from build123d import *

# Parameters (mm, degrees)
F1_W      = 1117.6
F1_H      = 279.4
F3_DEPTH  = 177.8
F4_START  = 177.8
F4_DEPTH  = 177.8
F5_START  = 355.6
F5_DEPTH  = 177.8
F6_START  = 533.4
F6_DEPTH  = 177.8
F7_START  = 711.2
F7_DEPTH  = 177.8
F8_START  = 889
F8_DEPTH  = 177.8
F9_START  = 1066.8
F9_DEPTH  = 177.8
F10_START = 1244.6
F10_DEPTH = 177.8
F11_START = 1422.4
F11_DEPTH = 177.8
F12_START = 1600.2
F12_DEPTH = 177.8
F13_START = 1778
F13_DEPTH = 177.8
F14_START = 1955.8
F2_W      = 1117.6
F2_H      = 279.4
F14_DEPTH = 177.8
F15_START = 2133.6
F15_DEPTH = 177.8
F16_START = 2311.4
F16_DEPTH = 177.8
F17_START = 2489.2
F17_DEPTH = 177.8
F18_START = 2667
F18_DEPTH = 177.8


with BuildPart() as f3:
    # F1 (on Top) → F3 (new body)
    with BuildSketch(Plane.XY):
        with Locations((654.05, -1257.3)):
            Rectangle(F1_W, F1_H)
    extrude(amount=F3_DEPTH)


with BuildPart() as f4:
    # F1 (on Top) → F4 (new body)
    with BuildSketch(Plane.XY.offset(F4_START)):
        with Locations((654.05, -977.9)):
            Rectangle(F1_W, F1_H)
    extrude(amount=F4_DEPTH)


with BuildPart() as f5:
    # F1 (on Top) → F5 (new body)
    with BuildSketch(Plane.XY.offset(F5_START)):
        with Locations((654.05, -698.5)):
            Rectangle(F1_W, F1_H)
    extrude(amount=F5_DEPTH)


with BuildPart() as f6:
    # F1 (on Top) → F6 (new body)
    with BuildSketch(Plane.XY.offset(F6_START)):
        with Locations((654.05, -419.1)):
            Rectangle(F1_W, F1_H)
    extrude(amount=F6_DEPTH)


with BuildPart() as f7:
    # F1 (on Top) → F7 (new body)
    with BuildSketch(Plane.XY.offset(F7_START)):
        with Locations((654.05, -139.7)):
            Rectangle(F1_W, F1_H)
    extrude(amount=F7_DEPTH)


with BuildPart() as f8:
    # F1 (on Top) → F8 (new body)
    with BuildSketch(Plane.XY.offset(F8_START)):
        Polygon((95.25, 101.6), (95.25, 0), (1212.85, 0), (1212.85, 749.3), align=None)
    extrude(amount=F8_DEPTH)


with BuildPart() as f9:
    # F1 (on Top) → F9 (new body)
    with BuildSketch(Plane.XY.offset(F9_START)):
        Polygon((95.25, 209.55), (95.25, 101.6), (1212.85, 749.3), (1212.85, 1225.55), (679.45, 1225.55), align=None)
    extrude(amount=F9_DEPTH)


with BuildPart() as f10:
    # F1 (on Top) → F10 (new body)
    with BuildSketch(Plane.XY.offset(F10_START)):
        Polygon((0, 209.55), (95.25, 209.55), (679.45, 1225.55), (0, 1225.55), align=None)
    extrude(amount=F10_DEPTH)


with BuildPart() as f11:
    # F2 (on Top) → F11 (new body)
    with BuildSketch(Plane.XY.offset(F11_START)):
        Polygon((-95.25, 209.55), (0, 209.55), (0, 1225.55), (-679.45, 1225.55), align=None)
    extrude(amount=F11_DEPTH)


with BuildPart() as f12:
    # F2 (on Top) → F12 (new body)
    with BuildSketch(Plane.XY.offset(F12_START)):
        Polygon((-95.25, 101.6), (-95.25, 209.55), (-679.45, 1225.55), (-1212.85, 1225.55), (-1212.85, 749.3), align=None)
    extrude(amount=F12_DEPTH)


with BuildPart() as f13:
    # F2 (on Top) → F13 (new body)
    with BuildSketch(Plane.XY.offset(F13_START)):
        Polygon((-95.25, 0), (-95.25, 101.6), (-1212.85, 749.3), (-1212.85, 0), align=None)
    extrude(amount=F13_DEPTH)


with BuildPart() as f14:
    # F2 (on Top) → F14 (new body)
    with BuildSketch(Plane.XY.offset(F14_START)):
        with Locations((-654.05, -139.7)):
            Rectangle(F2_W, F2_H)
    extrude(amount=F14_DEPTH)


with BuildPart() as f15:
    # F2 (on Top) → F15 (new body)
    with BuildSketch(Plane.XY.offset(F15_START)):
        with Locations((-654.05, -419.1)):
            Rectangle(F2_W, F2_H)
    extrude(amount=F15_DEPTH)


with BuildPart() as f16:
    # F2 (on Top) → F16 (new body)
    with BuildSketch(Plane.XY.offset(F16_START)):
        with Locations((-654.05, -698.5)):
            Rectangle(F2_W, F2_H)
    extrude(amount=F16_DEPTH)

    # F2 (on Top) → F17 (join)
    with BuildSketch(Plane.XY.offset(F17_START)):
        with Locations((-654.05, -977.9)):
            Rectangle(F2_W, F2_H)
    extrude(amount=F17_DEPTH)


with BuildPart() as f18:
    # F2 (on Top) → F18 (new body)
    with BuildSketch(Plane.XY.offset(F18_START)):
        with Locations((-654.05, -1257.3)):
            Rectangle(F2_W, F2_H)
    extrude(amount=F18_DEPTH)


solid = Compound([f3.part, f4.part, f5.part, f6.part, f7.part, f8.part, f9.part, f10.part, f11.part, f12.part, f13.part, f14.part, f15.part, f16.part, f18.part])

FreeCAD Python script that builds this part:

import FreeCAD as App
import Part
import Sketcher
from FreeCAD import Vector
Q = App.Units.Quantity


def add_polygon(sketch, points):
    """Adds a closed chain of lines whose ends are joined by coincident constraints."""
    first, n = sketch.GeometryCount, len(points)
    for a, b in zip(points, points[1:] + points[:1]):
        sketch.addGeometry(Part.LineSegment(App.Vector(*a, 0), App.Vector(*b, 0)), False)
    for i in range(n):
        sketch.addConstraint(Sketcher.Constraint("Coincident", first + i, 2, first + (i + 1) % n, 1))

doc = App.newDocument("Part")
body = doc.addObject("PartDesign::Body", "Body")

# Sketch on XY plane
sketch1 = body.newObject("Sketcher::SketchObject", "Sketch")
sketch1.AttachmentSupport = (doc.getObject("XY_Plane"), [""])
sketch1.MapMode = "FlatFace"
add_polygon(sketch1, [(95.25, -1117.6), (95.25, -1397), (1212.85, -1397), (1212.85, -1117.6)])  # lines 0-3
sketch1.addConstraint([
    Sketcher.Constraint("Vertical", 0),
    Sketcher.Constraint("Horizontal", 1),
    Sketcher.Constraint("Vertical", 2),
    Sketcher.Constraint("Horizontal", 3),
    Sketcher.Constraint("DistanceX", 1, 1, 1, 2, Q("44 in")),
    Sketcher.Constraint("DistanceY", 0, 2, 0, 1, Q("11 in")),
    Sketcher.Constraint("DistanceY", 0, 2, -1, 1, Q("55 in")),
    Sketcher.Constraint("DistanceX", -1, 1, 0, 2, Q("3.75 in")),
])
pad1 = body.newObject("PartDesign::Pad", "Pad")
pad1.Profile = sketch1
pad1.Length = Q("7 in")
body2 = doc.addObject("PartDesign::Body", "Body001")

# Sketch on XY plane
sketch2 = body2.newObject("Sketcher::SketchObject", "Sketch001")
sketch2.AttachmentSupport = (doc.getObject("XY_Plane001"), [""])
sketch2.MapMode = "FlatFace"
sketch2.AttachmentOffset = App.Placement(Vector(0, 0, 7 * 25.4), App.Rotation())
add_polygon(sketch2, [(95.25, -838.2), (95.25, -1117.6), (1212.85, -1117.6), (1212.85, -838.2)])  # lines 0-3
sketch2.addConstraint([
    Sketcher.Constraint("Vertical", 0),
    Sketcher.Constraint("Horizontal", 1),
    Sketcher.Constraint("Vertical", 2),
    Sketcher.Constraint("Horizontal", 3),
    Sketcher.Constraint("DistanceX", 1, 1, 1, 2, Q("44 in")),
    Sketcher.Constraint("DistanceY", 0, 2, 0, 1, Q("11 in")),
    Sketcher.Constraint("DistanceY", 0, 2, -1, 1, Q("44 in")),
    Sketcher.Constraint("DistanceX", -1, 1, 0, 2, Q("3.75 in")),
])
pad2 = body2.newObject("PartDesign::Pad", "Pad001")
pad2.Profile = sketch2
pad2.Length = Q("7 in")
body3 = doc.addObject("PartDesign::Body", "Body002")

# Sketch on XY plane
sketch3 = body3.newObject("Sketcher::SketchObject", "Sketch002")
sketch3.AttachmentSupport = (doc.getObject("XY_Plane002"), [""])
sketch3.MapMode = "FlatFace"
sketch3.AttachmentOffset = App.Placement(Vector(0, 0, 14 * 25.4), App.Rotation())
add_polygon(sketch3, [(95.25, -558.8), (95.25, -838.2), (1212.85, -838.2), (1212.85, -558.8)])  # lines 0-3
sketch3.addConstraint([
    Sketcher.Constraint("Vertical", 0),
    Sketcher.Constraint("Horizontal", 1),
    Sketcher.Constraint("Vertical", 2),
    Sketcher.Constraint("Horizontal", 3),
    Sketcher.Constraint("DistanceX", 1, 1, 1, 2, Q("44 in")),
    Sketcher.Constraint("DistanceY", 0, 2, 0, 1, Q("11 in")),
    Sketcher.Constraint("DistanceY", 0, 2, -1, 1, Q("33 in")),
    Sketcher.Constraint("DistanceX", -1, 1, 0, 2, Q("3.75 in")),
])
pad3 = body3.newObject("PartDesign::Pad", "Pad002")
pad3.Profile = sketch3
pad3.Length = Q("7 in")
body4 = doc.addObject("PartDesign::Body", "Body003")

# Sketch on XY plane
sketch4 = body4.newObject("Sketcher::SketchObject", "Sketch003")
sketch4.AttachmentSupport = (doc.getObject("XY_Plane003"), [""])
sketch4.MapMode = "FlatFace"
sketch4.AttachmentOffset = App.Placement(Vector(0, 0, 21 * 25.4), App.Rotation())
add_polygon(sketch4, [(95.25, -279.4), (95.25, -558.8), (1212.85, -558.8), (1212.85, -279.4)])  # lines 0-3
sketch4.addConstraint([
    Sketcher.Constraint("Vertical", 0),
    Sketcher.Constraint("Horizontal", 1),
    Sketcher.Constraint("Vertical", 2),
    Sketcher.Constraint("Horizontal", 3),
    Sketcher.Constraint("DistanceX", 1, 1, 1, 2, Q("44 in")),
    Sketcher.Constraint("DistanceY", 0, 2, 0, 1, Q("11 in")),
    Sketcher.Constraint("DistanceY", 0, 2, -1, 1, Q("22 in")),
    Sketcher.Constraint("DistanceX", -1, 1, 0, 2, Q("3.75 in")),
])
pad4 = body4.newObject("PartDesign::Pad", "Pad003")
pad4.Profile = sketch4
pad4.Length = Q("7 in")
body5 = doc.addObject("PartDesign::Body", "Body004")

# Sketch on XY plane
sketch5 = body5.newObject("Sketcher::SketchObject", "Sketch004")
sketch5.AttachmentSupport = (doc.getObject("XY_Plane004"), [""])
sketch5.MapMode = "FlatFace"
sketch5.AttachmentOffset = App.Placement(Vector(0, 0, 28 * 25.4), App.Rotation())
add_polygon(sketch5, [(95.25, 0), (95.25, -279.4), (1212.85, -279.4), (1212.85, 0)])  # lines 0-3
sketch5.addConstraint([
    Sketcher.Constraint("Vertical", 0),
    Sketcher.Constraint("Horizontal", 1),
    Sketcher.Constraint("Vertical", 2),
    Sketcher.Constraint("Horizontal", 3),
    Sketcher.Constraint("PointOnObject", 2, 2, -1),
    Sketcher.Constraint("DistanceX", 1, 1, 1, 2, Q("44 in")),
    Sketcher.Constraint("DistanceY", 0, 2, 0, 1, Q("11 in")),
    Sketcher.Constraint("DistanceX", -1, 1, 0, 2, Q("3.75 in")),
])
pad5 = body5.newObject("PartDesign::Pad", "Pad004")
pad5.Profile = sketch5
pad5.Length = Q("7 in")
body6 = doc.addObject("PartDesign::Body", "Body005")

# Sketch on XY plane
sketch6 = body6.newObject("Sketcher::SketchObject", "Sketch005")
sketch6.AttachmentSupport = (doc.getObject("XY_Plane005"), [""])
sketch6.MapMode = "FlatFace"
sketch6.AttachmentOffset = App.Placement(Vector(0, 0, 35 * 25.4), App.Rotation())
add_polygon(sketch6, [(95.25, 101.6), (95.25, 0), (1212.85, 0), (1212.85, 749.3)])  # lines 0-3
sketch6.addConstraint([
    Sketcher.Constraint("Vertical", 0),
    Sketcher.Constraint("Horizontal", 1),
    Sketcher.Constraint("Vertical", 2),
    Sketcher.Constraint("PointOnObject", 0, 2, -1),
    Sketcher.Constraint("DistanceX", 1, 1, 1, 2, Q("44 in")),
    Sketcher.Constraint("DistanceY", 0, 2, 0, 1, Q("4 in")),
    Sketcher.Constraint("DistanceY", 2, 1, 2, 2, Q("29.5 in")),
    Sketcher.Constraint("DistanceX", -1, 1, 0, 2, Q("3.75 in")),
])
pad6 = body6.newObject("PartDesign::Pad", "Pad005")
pad6.Profile = sketch6
pad6.Length = Q("7 in")
body7 = doc.addObject("PartDesign::Body", "Body006")

# Sketch on XY plane
sketch7 = body7.newObject("Sketcher::SketchObject", "Sketch006")
sketch7.AttachmentSupport = (doc.getObject("XY_Plane006"), [""])
sketch7.MapMode = "FlatFace"
sketch7.AttachmentOffset = App.Placement(Vector(0, 0, 42 * 25.4), App.Rotation())
add_polygon(sketch7, [(95.25, 209.55), (95.25, 101.6), (1212.85, 749.3), (1212.85, 1225.55), (679.45, 1225.55)])  # lines 0-4
sketch7.addConstraint([
    Sketcher.Constraint("Vertical", 0),
    Sketcher.Constraint("Vertical", 2),
    Sketcher.Constraint("Horizontal", 3),
    Sketcher.Constraint("DistanceX", 3, 2, 3, 1, Q("21 in")),
    Sketcher.Constraint("DistanceY", -1, 1, 0, 2, Q("4 in")),
    Sketcher.Constraint("DistanceX", 0, 2, 1, 2, Q("44 in")),
    Sketcher.Constraint("DistanceY", 4, 2, 3, 2, Q("40 in")),
    Sketcher.Constraint("DistanceY", 0, 2, 0, 1, Q("4.25 in")),
    Sketcher.Constraint("DistanceY", 2, 1, 2, 2, Q("18.75 in")),
    Sketcher.Constraint("DistanceX", -1, 1, 0, 2, Q("3.75 in")),
])
pad7 = body7.newObject("PartDesign::Pad", "Pad006")
pad7.Profile = sketch7
pad7.Length = Q("7 in")
body8 = doc.addObject("PartDesign::Body", "Body007")

# Sketch on XY plane
sketch8 = body8.newObject("Sketcher::SketchObject", "Sketch007")
sketch8.AttachmentSupport = (doc.getObject("XY_Plane007"), [""])
sketch8.MapMode = "FlatFace"
sketch8.AttachmentOffset = App.Placement(Vector(0, 0, 49 * 25.4), App.Rotation())
add_polygon(sketch8, [(0, 209.55), (95.25, 209.55), (679.45, 1225.55), (0, 1225.55)])  # lines 0-3
sketch8.addConstraint([
    Sketcher.Constraint("Horizontal", 0),
    Sketcher.Constraint("Horizontal", 2),
    Sketcher.Constraint("Vertical", 3),
    Sketcher.Constraint("PointOnObject", 2, 2, -2),
    Sketcher.Constraint("DistanceY", 3, 2, 3, 1, Q("40 in")),
    Sketcher.Constraint("DistanceX", 0, 2, 1, 2, Q("23 in")),
    Sketcher.Constraint("DistanceX", 0, 1, 0, 2, Q("3.75 in")),
    Sketcher.Constraint("DistanceY", -1, 1, 0, 2, Q("8.25 in")),
])
pad8 = body8.newObject("PartDesign::Pad", "Pad007")
pad8.Profile = sketch8
pad8.Length = Q("7 in")
body9 = doc.addObject("PartDesign::Body", "Body008")

# Sketch on XY plane
sketch9 = body9.newObject("Sketcher::SketchObject", "Sketch008")
sketch9.AttachmentSupport = (doc.getObject("XY_Plane008"), [""])
sketch9.MapMode = "FlatFace"
sketch9.AttachmentOffset = App.Placement(Vector(0, 0, 56 * 25.4), App.Rotation())
add_polygon(sketch9, [(-95.25, 209.55), (0, 209.55), (0, 1225.55), (-679.45, 1225.55)])  # lines 0-3
sketch9.addConstraint([
    Sketcher.Constraint("Horizontal", 0),
    Sketcher.Constraint("Vertical", 1),
    Sketcher.Constraint("Horizontal", 2),
    Sketcher.Constraint("PointOnObject", 0, 2, -2),
    Sketcher.Constraint("DistanceY", 1, 1, 1, 2, Q("40 in")),
    Sketcher.Constraint("DistanceX", 2, 2, 3, 2, Q("23 in")),
    Sketcher.Constraint("DistanceX", 0, 1, 0, 2, Q("3.75 in")),
    Sketcher.Constraint("DistanceY", -1, 1, 0, 2, Q("8.25 in")),
])
pad9 = body9.newObject("PartDesign::Pad", "Pad008")
pad9.Profile = sketch9
pad9.Length = Q("7 in")
body10 = doc.addObject("PartDesign::Body", "Body009")

# Sketch on XY plane
sketch10 = body10.newObject("Sketcher::SketchObject", "Sketch009")
sketch10.AttachmentSupport = (doc.getObject("XY_Plane009"), [""])
sketch10.MapMode = "FlatFace"
sketch10.AttachmentOffset = App.Placement(Vector(0, 0, 63 * 25.4), App.Rotation())
add_polygon(sketch10, [(-95.25, 101.6), (-95.25, 209.55), (-679.45, 1225.55), (-1212.85, 1225.55), (-1212.85, 749.3)])  # lines 0-4
sketch10.addConstraint([
    Sketcher.Constraint("Vertical", 0),
    Sketcher.Constraint("Horizontal", 2),
    Sketcher.Constraint("Vertical", 3),
    Sketcher.Constraint("DistanceX", 2, 2, 2, 1, Q("21 in")),
    Sketcher.Constraint("DistanceY", -1, 1, 4, 2, Q("4 in")),
    Sketcher.Constraint("DistanceX", 1, 2, 0, 2, Q("23 in")),
    Sketcher.Constraint("DistanceY", 0, 2, 1, 2, Q("40 in")),
    Sketcher.Constraint("DistanceY", 0, 1, 0, 2, Q("4.25 in")),
    Sketcher.Constraint("DistanceY", 3, 2, 3, 1, Q("18.75 in")),
    Sketcher.Constraint("DistanceX", 0, 2, -1, 1, Q("3.75 in")),
])
pad10 = body10.newObject("PartDesign::Pad", "Pad009")
pad10.Profile = sketch10
pad10.Length = Q("7 in")
body11 = doc.addObject("PartDesign::Body", "Body010")

# Sketch on XY plane
sketch11 = body11.newObject("Sketcher::SketchObject", "Sketch010")
sketch11.AttachmentSupport = (doc.getObject("XY_Plane010"), [""])
sketch11.MapMode = "FlatFace"
sketch11.AttachmentOffset = App.Placement(Vector(0, 0, 70 * 25.4), App.Rotation())
add_polygon(sketch11, [(-95.25, 0), (-95.25, 101.6), (-1212.85, 749.3), (-1212.85, 0)])  # lines 0-3
sketch11.addConstraint([
    Sketcher.Constraint("Vertical", 0),
    Sketcher.Constraint("Vertical", 2),
    Sketcher.Constraint("Horizontal", 3),
    Sketcher.Constraint("PointOnObject", 2, 2, -1),
    Sketcher.Constraint("DistanceX", 3, 1, 3, 2, Q("44 in")),
    Sketcher.Constraint("DistanceY", 0, 1, 0, 2, Q("4 in")),
    Sketcher.Constraint("DistanceY", 2, 2, 2, 1, Q("29.5 in")),
    Sketcher.Constraint("DistanceX", 0, 2, -1, 1, Q("3.75 in")),
])
pad11 = body11.newObject("PartDesign::Pad", "Pad010")
pad11.Profile = sketch11
pad11.Length = Q("7 in")
body12 = doc.addObject("PartDesign::Body", "Body011")

# Sketch on XY plane
sketch12 = body12.newObject("Sketcher::SketchObject", "Sketch011")
sketch12.AttachmentSupport = (doc.getObject("XY_Plane011"), [""])
sketch12.MapMode = "FlatFace"
sketch12.AttachmentOffset = App.Placement(Vector(0, 0, 77 * 25.4), App.Rotation())
add_polygon(sketch12, [(-1212.85, 0), (-1212.85, -279.4), (-95.25, -279.4), (-95.25, 0)])  # lines 0-3
sketch12.addConstraint([
    Sketcher.Constraint("Vertical", 0),
    Sketcher.Constraint("Horizontal", 1),
    Sketcher.Constraint("Vertical", 2),
    Sketcher.Constraint("Horizontal", 3),
    Sketcher.Constraint("PointOnObject", 2, 2, -1),
    Sketcher.Constraint("DistanceX", 1, 1, 1, 2, Q("44 in")),
    Sketcher.Constraint("DistanceY", 0, 2, 0, 1, Q("11 in")),
    Sketcher.Constraint("DistanceX", 0, 2, -1, 1, Q("47.75 in")),
])
pad12 = body12.newObject("PartDesign::Pad", "Pad011")
pad12.Profile = sketch12
pad12.Length = Q("7 in")
body13 = doc.addObject("PartDesign::Body", "Body012")

# Sketch on XY plane
sketch13 = body13.newObject("Sketcher::SketchObject", "Sketch012")
sketch13.AttachmentSupport = (doc.getObject("XY_Plane012"), [""])
sketch13.MapMode = "FlatFace"
sketch13.AttachmentOffset = App.Placement(Vector(0, 0, 84 * 25.4), App.Rotation())
add_polygon(sketch13, [(-1212.85, -279.4), (-1212.85, -558.8), (-95.25, -558.8), (-95.25, -279.4)])  # lines 0-3
sketch13.addConstraint([
    Sketcher.Constraint("Vertical", 0),
    Sketcher.Constraint("Horizontal", 1),
    Sketcher.Constraint("Vertical", 2),
    Sketcher.Constraint("Horizontal", 3),
    Sketcher.Constraint("DistanceX", 1, 1, 1, 2, Q("44 in")),
    Sketcher.Constraint("DistanceY", 0, 2, 0, 1, Q("11 in")),
    Sketcher.Constraint("DistanceY", 0, 2, -1, 1, Q("22 in")),
    Sketcher.Constraint("DistanceX", 0, 2, -1, 1, Q("47.75 in")),
])
pad13 = body13.newObject("PartDesign::Pad", "Pad012")
pad13.Profile = sketch13
pad13.Length = Q("7 in")
body14 = doc.addObject("PartDesign::Body", "Body013")
body14.AllowCompound = True

# Sketch on XY plane
sketch14 = body14.newObject("Sketcher::SketchObject", "Sketch013")
sketch14.AttachmentSupport = (doc.getObject("XY_Plane013"), [""])
sketch14.MapMode = "FlatFace"
sketch14.AttachmentOffset = App.Placement(Vector(0, 0, 91 * 25.4), App.Rotation())
add_polygon(sketch14, [(-1212.85, -558.8), (-1212.85, -838.2), (-95.25, -838.2), (-95.25, -558.8)])  # lines 0-3
sketch14.addConstraint([
    Sketcher.Constraint("Vertical", 0),
    Sketcher.Constraint("Horizontal", 1),
    Sketcher.Constraint("Vertical", 2),
    Sketcher.Constraint("Horizontal", 3),
    Sketcher.Constraint("DistanceX", 1, 1, 1, 2, Q("44 in")),
    Sketcher.Constraint("DistanceY", 0, 2, 0, 1, Q("11 in")),
    Sketcher.Constraint("DistanceY", 0, 2, -1, 1, Q("33 in")),
    Sketcher.Constraint("DistanceX", 0, 2, -1, 1, Q("47.75 in")),
])
pad14 = body14.newObject("PartDesign::Pad", "Pad013")
pad14.Profile = sketch14
pad14.Length = Q("7 in")

# Sketch on XY plane
sketch15 = body14.newObject("Sketcher::SketchObject", "Sketch014")
sketch15.AttachmentSupport = (doc.getObject("XY_Plane013"), [""])
sketch15.MapMode = "FlatFace"
sketch15.AttachmentOffset = App.Placement(Vector(0, 0, 98 * 25.4), App.Rotation())
add_polygon(sketch15, [(-1212.85, -838.2), (-1212.85, -1117.6), (-95.25, -1117.6), (-95.25, -838.2)])  # lines 0-3
sketch15.addConstraint([
    Sketcher.Constraint("Vertical", 0),
    Sketcher.Constraint("Horizontal", 1),
    Sketcher.Constraint("Vertical", 2),
    Sketcher.Constraint("Horizontal", 3),
    Sketcher.Constraint("DistanceX", 1, 1, 1, 2, Q("44 in")),
    Sketcher.Constraint("DistanceY", 0, 2, 0, 1, Q("11 in")),
    Sketcher.Constraint("DistanceY", 0, 2, -1, 1, Q("44 in")),
    Sketcher.Constraint("DistanceX", 0, 2, -1, 1, Q("47.75 in")),
])
pad15 = body14.newObject("PartDesign::Pad", "Pad014")
pad15.Profile = sketch15
pad15.Length = Q("7 in")
body15 = doc.addObject("PartDesign::Body", "Body014")

# Sketch on XY plane
sketch16 = body15.newObject("Sketcher::SketchObject", "Sketch015")
sketch16.AttachmentSupport = (doc.getObject("XY_Plane014"), [""])
sketch16.MapMode = "FlatFace"
sketch16.AttachmentOffset = App.Placement(Vector(0, 0, 105 * 25.4), App.Rotation())
add_polygon(sketch16, [(-1212.85, -1117.6), (-1212.85, -1397), (-95.25, -1397), (-95.25, -1117.6)])  # lines 0-3
sketch16.addConstraint([
    Sketcher.Constraint("Vertical", 0),
    Sketcher.Constraint("Horizontal", 1),
    Sketcher.Constraint("Vertical", 2),
    Sketcher.Constraint("Horizontal", 3),
    Sketcher.Constraint("DistanceX", 1, 1, 1, 2, Q("44 in")),
    Sketcher.Constraint("DistanceY", 0, 2, 0, 1, Q("11 in")),
    Sketcher.Constraint("DistanceY", 0, 2, -1, 1, Q("55 in")),
    Sketcher.Constraint("DistanceX", 0, 2, -1, 1, Q("47.75 in")),
])
pad16 = body15.newObject("PartDesign::Pad", "Pad015")
pad16.Profile = sketch16
pad16.Length = Q("7 in")

doc.recompute()
